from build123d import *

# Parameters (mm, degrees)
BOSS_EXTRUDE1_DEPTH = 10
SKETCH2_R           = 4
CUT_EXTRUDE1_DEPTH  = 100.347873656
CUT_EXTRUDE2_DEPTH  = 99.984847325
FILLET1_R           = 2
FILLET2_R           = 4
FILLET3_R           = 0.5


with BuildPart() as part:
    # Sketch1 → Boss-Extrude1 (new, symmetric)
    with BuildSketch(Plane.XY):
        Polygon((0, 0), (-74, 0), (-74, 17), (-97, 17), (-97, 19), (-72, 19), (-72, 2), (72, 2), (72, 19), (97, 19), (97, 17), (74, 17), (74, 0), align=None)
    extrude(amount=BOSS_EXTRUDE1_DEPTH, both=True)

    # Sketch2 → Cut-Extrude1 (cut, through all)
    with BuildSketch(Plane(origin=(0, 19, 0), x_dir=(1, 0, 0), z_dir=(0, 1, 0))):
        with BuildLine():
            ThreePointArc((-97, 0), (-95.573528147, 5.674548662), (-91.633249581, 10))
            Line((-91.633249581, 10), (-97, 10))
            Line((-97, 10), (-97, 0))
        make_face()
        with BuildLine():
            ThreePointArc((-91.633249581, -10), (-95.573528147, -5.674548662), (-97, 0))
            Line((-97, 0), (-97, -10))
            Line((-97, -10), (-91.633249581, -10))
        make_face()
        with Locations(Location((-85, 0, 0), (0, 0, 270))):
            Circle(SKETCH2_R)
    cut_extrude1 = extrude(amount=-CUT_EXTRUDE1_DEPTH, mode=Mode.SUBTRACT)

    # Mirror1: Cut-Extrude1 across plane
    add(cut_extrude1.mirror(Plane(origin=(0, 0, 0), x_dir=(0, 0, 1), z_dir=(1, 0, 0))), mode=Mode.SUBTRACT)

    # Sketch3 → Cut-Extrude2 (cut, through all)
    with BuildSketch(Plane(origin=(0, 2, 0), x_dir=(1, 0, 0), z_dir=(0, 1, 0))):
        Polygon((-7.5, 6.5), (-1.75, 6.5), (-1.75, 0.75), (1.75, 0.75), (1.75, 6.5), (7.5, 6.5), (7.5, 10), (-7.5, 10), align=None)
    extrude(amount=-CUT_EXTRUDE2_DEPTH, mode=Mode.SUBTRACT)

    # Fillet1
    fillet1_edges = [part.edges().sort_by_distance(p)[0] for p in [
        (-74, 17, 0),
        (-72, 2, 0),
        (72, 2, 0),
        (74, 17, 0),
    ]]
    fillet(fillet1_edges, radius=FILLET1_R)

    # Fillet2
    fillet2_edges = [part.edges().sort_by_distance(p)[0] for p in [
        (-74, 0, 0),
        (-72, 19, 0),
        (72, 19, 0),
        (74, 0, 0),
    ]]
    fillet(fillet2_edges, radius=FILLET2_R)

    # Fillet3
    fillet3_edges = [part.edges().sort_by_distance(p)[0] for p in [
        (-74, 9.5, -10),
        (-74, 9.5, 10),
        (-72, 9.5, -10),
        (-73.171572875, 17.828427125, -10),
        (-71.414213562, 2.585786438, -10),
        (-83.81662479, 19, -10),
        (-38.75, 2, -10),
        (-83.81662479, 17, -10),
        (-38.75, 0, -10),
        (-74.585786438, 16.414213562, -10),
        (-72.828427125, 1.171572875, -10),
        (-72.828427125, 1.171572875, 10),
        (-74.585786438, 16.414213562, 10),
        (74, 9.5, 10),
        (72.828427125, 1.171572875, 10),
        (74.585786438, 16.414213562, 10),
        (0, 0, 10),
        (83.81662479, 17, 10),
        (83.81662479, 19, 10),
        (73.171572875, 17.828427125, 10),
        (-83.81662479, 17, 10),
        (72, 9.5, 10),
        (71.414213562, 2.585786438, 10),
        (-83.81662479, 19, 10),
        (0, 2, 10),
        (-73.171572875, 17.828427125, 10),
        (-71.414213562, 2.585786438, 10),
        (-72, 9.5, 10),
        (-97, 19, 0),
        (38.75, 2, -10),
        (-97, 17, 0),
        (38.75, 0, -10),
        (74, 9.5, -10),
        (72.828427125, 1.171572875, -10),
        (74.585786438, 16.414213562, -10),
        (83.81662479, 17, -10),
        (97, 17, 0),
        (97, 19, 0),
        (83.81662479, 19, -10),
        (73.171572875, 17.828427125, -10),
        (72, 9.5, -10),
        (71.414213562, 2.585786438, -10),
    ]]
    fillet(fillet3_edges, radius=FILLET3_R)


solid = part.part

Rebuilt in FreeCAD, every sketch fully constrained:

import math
import FreeCAD as App
import Part
import Sketcher


def edges_at(feature, points):
    """Names of the edges that pass closest to the given points."""
    edges = feature.Shape.Edges
    near = lambda p: min(range(len(edges)), key=lambda i: edges[i].distToShape(Part.Vertex(*p))[0])
    return sorted({f"Edge{near(p) + 1}" for p in points})


def add_polygon(sketch, points):
    """Adds a closed chain of lines whose ends are joined by coincident constraints."""
    first, n = sketch.GeometryCount, len(points)
    for a, b in zip(points, points[1:] + points[:1]):
        sketch.addGeometry(Part.LineSegment(App.Vector(*a, 0), App.Vector(*b, 0)), False)
    for i in range(n):
        sketch.addConstraint(Sketcher.Constraint("Coincident", first + i, 2, first + (i + 1) % n, 1))

doc = App.newDocument("Part")
body = doc.addObject("PartDesign::Body", "Body")

sketch1 = body.newObject("Sketcher::SketchObject", "Sketch")
sketch1.AttachmentSupport = (doc.getObject("XY_Plane"), [""])
sketch1.MapMode = "FlatFace"
add_polygon(sketch1, [(-74, 0), (74, 0), (74, 17), (97, 17), (97, 19), (72, 19), (72, 2), (-72, 2), (-72, 19), (-97, 19), (-97, 17), (-74, 17)])
sketch1.addConstraint([
    Sketcher.Constraint("Horizontal", 0),
    Sketcher.Constraint("Vertical", 1),
    Sketcher.Constraint("Horizontal", 2),
    Sketcher.Constraint("Vertical", 3),
    Sketcher.Constraint("Horizontal", 4),
    Sketcher.Constraint("Vertical", 5),
    Sketcher.Constraint("Horizontal", 6),
    Sketcher.Constraint("Vertical", 7),
    Sketcher.Constraint("Horizontal", 8),
    Sketcher.Constraint("Vertical", 9),
    Sketcher.Constraint("Horizontal", 10),
    Sketcher.Constraint("Vertical", 11),
    Sketcher.Constraint("Symmetric", 0, 2, 11, 2, -1, 1),
    Sketcher.Constraint("Symmetric", 4, 2, 7, 2, -2),
    Sketcher.Constraint("Symmetric", 2, 2, 9, 2, -2),
    Sketcher.Constraint("Equal", 1, 5),
    Sketcher.Constraint("DistanceX", 0, 1, 0, 2, 148.0),
    Sketcher.Constraint("DistanceX", 2, 1, 2, 2, 23.0),
    Sketcher.Constraint("DistanceX", 4, 2, 4, 1, 25.0),
    Sketcher.Constraint("DistanceY", 1, 1, 1, 2, 17.0),
    Sketcher.Constraint("DistanceY", 3, 1, 3, 2, 2.0),
])
pad1 = body.newObject("PartDesign::Pad", "Pad")
pad1.Profile = sketch1
pad1.Length = 20
pad1.Midplane = True

sketch2 = body.newObject("Sketcher::SketchObject", "Sketch001")
sketch2.AttachmentSupport = (doc.getObject("XZ_Plane"), [""])
sketch2.MapMode = "FlatFace"
sketch2.AttachmentOffset = App.Placement(App.Vector(0, 0, -19), App.Rotation())
sketch2.addGeometry([
    Part.ArcOfCircle(Part.Circle(App.Vector(-85, 0, 0), App.Vector(0, 0, 1), 12), math.radians(-180), math.radians(-124)),
    Part.LineSegment(App.Vector(-91.6, -10, 0), App.Vector(-97, -10, 0)),
    Part.LineSegment(App.Vector(-97, -10, 0), App.Vector(-97, 0, 0)),
    Part.ArcOfCircle(Part.Circle(App.Vector(-85, 0, 0), App.Vector(0, 0, 1), 12), math.radians(124), math.radians(180)),
    Part.LineSegment(App.Vector(-97, 0, 0), App.Vector(-97, 10, 0)),
    Part.LineSegment(App.Vector(-97, 10, 0), App.Vector(-91.6, 10, 0)),
    Part.Circle(App.Vector(-85, 0, 0), App.Vector(0, 0, 1), 4),
], False)
sketch2.addConstraint([
    Sketcher.Constraint("Coincident", 0, 2, 1, 1),
    Sketcher.Constraint("Coincident", 1, 2, 2, 1),
    Sketcher.Constraint("Tangent", 2, 2, 0, 1),
    Sketcher.Constraint("Tangent", 3, 2, 4, 1),
    Sketcher.Constraint("Coincident", 4, 2, 5, 1),
    Sketcher.Constraint("Coincident", 5, 2, 3, 1),
    Sketcher.Constraint("Horizontal", 1),
    Sketcher.Constraint("Vertical", 2),
    Sketcher.Constraint("Vertical", 4),
    Sketcher.Constraint("Horizontal", 5),
    Sketcher.Constraint("Coincident", 3, 3, 0, 3),
    Sketcher.Constraint("Coincident", 6, 3, 0, 3),
    Sketcher.Constraint("Equal", 0, 3),
    Sketcher.Constraint("Symmetric", 0, 2, 5, 2, -1),
    Sketcher.Constraint("Diameter", 6, 8.0),
    Sketcher.Constraint("Radius", 0, 12.0),
    Sketcher.Constraint("DistanceY", 2, 1, 2, 2, 10.0),
    Sketcher.Constraint("DistanceX", 0, 3, -1, 1, 85.0),
])
pocket1 = body.newObject("PartDesign::Pocket", "Pocket")
pocket1.Profile = sketch2
pocket1.Type = "ThroughAll"
pocket1.Reversed = True
doc.recompute()

mirrored = body.newObject("PartDesign::Mirrored", "Mirrored")
mirrored.Originals = [pocket1]
mirrored.MirrorPlane = (doc.getObject("YZ_Plane"), [""])
body.Tip = mirrored

sketch3 = body.newObject("Sketcher::SketchObject", "Sketch002")
sketch3.AttachmentSupport = (doc.getObject("XZ_Plane"), [""])
sketch3.MapMode = "FlatFace"
sketch3.AttachmentOffset = App.Placement(App.Vector(0, 0, -2), App.Rotation())
add_polygon(sketch3, [(-7.5, -6.5), (-1.8, -6.5), (-1.8, -0.8), (1.8, -0.8), (1.8, -6.5), (7.5, -6.5), (7.5, -10), (-7.5, -10)])
sketch3.addConstraint([
    Sketcher.Constraint("Horizontal", 0),
    Sketcher.Constraint("Vertical", 1),
    Sketcher.Constraint("Horizontal", 2),
    Sketcher.Constraint("Vertical", 3),
    Sketcher.Constraint("Horizontal", 4),
    Sketcher.Constraint("Vertical", 5),
    Sketcher.Constraint("Horizontal", 6),
    Sketcher.Constraint("Vertical", 7),
    Sketcher.Constraint("Symmetric", 0, 2, 3, 2, -2),
    Sketcher.Constraint("Equal", 0, 4),
    Sketcher.Constraint("Equal", 4, 1),
    Sketcher.Constraint("Equal", 2, 5),
    Sketcher.Constraint("DistanceX", 6, 2, 6, 1, 15.0),
    Sketcher.Constraint("DistanceX", 2, 1, 2, 2, 3.5),
    Sketcher.Constraint("DistanceY", 5, 2, -1, 1, 10.0),
])
pocket2 = body.newObject("PartDesign::Pocket", "Pocket001")
pocket2.Profile = sketch3
pocket2.Type = "ThroughAll"
pocket2.Reversed = True
doc.recompute()

fillet = body.newObject("PartDesign::Fillet", "Fillet")
fillet.Base = (pocket2, edges_at(pocket2, [
    (-74, 17, 0),
    (-72, 2, 0),
    (72, 2, 0),
    (74, 17, 0),
]))
fillet.Radius = 2
doc.recompute()

fillet2 = body.newObject("PartDesign::Fillet", "Fillet001")
fillet2.Base = (fillet, edges_at(fillet, [
    (-74, 0, 0),
    (-72, 19, 0),
    (72, 19, 0),
    (74, 0, 0),
]))
fillet2.Radius = 4
doc.recompute()

fillet3 = body.newObject("PartDesign::Fillet", "Fillet002")
fillet3.Base = (fillet2, edges_at(fillet2, [
    (-74, 9.5, -10),
    (-74, 9.5, 10),
    (-72, 9.5, -10),
    (-73.172, 17.828, -10),
    (-71.414, 2.586, -10),
    (-83.817, 19, -10),
    (-38.75, 2, -10),
    (-83.817, 17, -10),
    (-38.75, 0, -10),
    (-74.586, 16.414, -10),
    (-72.828, 1.172, -10),
    (-72.828, 1.172, 10),
    (-74.586, 16.414, 10),
    (74, 9.5, 10),
    (72.828, 1.172, 10),
    (74.586, 16.414, 10),
    (0, 0, 10),
    (83.817, 17, 10),
    (83.817, 19, 10),
    (73.172, 17.828, 10),
    (-83.817, 17, 10),
    (72, 9.5, 10),
    (71.414, 2.586, 10),
    (-83.817, 19, 10),
    (0, 2, 10),
    (-73.172, 17.828, 10),
    (-71.414, 2.586, 10),
    (-72, 9.5, 10),
    (-95.574, 19, 5.675),
    (38.75, 2, -10),
    (-95.574, 17, -5.675),
    (38.75, 0, -10),
    (74, 9.5, -10),
    (72.828, 1.172, -10),
    (74.586, 16.414, -10),
    (83.817, 17, -10),
    (95.574, 17, 5.675),
    (95.574, 19, 5.675),
    (83.817, 19, -10),
    (73.172, 17.828, -10),
    (72, 9.5, -10),
    (71.414, 2.586, -10),
]))
fillet3.Radius = 0.5

doc.recompute()
